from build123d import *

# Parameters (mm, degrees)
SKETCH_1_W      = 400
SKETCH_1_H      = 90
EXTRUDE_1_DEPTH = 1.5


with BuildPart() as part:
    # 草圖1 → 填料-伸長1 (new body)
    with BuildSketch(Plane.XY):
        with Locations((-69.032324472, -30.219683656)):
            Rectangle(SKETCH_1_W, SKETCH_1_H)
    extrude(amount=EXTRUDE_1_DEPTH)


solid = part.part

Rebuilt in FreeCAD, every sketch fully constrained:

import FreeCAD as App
import Part
import Sketcher

V = App.Vector

doc = App.newDocument("Part")
body = doc.addObject("PartDesign::Body", "Body")

sketch1 = doc.addObject("Sketcher::SketchObject", "Sketch")
body.addObject(sketch1)
sketch1.AttachmentSupport = (doc.XY_Plane, [""])
sketch1.MapMode = "FlatFace"
sketch1.addGeometry([
    Part.LineSegment(V(-269, 15, 0), V(-269, -75, 0)),
    Part.LineSegment(V(-269, -75, 0), V(131, -75, 0)),
    Part.LineSegment(V(131, -75, 0), V(131, 15, 0)),
    Part.LineSegment(V(131, 15, 0), V(-269, 15, 0)),
], False)
sketch1.addConstraint([
    Sketcher.Constraint("Coincident", 0, 2, 1, 1),
    Sketcher.Constraint("Coincident", 1, 2, 2, 1),
    Sketcher.Constraint("Coincident", 2, 2, 3, 1),
    Sketcher.Constraint("Coincident", 3, 2, 0, 1),
    Sketcher.Constraint("Vertical", 0),
    Sketcher.Constraint("Horizontal", 1),
    Sketcher.Constraint("Vertical", 2),
    Sketcher.Constraint("Horizontal", 3),
    Sketcher.Constraint("DistanceX", 1, 1, 1, 2, 400.0),
    Sketcher.Constraint("DistanceY", 0, 2, 0, 1, 90.0),
    Sketcher.Constraint("DistanceX", 0, 2, -1, 1, 269.032324),
    Sketcher.Constraint("DistanceY", 0, 2, -1, 1, 75.219684),
])
pad1 = doc.addObject("PartDesign::Pad", "Pad")
body.addObject(pad1)
pad1.Profile = sketch1
pad1.Length = 1.5

doc.recompute()
